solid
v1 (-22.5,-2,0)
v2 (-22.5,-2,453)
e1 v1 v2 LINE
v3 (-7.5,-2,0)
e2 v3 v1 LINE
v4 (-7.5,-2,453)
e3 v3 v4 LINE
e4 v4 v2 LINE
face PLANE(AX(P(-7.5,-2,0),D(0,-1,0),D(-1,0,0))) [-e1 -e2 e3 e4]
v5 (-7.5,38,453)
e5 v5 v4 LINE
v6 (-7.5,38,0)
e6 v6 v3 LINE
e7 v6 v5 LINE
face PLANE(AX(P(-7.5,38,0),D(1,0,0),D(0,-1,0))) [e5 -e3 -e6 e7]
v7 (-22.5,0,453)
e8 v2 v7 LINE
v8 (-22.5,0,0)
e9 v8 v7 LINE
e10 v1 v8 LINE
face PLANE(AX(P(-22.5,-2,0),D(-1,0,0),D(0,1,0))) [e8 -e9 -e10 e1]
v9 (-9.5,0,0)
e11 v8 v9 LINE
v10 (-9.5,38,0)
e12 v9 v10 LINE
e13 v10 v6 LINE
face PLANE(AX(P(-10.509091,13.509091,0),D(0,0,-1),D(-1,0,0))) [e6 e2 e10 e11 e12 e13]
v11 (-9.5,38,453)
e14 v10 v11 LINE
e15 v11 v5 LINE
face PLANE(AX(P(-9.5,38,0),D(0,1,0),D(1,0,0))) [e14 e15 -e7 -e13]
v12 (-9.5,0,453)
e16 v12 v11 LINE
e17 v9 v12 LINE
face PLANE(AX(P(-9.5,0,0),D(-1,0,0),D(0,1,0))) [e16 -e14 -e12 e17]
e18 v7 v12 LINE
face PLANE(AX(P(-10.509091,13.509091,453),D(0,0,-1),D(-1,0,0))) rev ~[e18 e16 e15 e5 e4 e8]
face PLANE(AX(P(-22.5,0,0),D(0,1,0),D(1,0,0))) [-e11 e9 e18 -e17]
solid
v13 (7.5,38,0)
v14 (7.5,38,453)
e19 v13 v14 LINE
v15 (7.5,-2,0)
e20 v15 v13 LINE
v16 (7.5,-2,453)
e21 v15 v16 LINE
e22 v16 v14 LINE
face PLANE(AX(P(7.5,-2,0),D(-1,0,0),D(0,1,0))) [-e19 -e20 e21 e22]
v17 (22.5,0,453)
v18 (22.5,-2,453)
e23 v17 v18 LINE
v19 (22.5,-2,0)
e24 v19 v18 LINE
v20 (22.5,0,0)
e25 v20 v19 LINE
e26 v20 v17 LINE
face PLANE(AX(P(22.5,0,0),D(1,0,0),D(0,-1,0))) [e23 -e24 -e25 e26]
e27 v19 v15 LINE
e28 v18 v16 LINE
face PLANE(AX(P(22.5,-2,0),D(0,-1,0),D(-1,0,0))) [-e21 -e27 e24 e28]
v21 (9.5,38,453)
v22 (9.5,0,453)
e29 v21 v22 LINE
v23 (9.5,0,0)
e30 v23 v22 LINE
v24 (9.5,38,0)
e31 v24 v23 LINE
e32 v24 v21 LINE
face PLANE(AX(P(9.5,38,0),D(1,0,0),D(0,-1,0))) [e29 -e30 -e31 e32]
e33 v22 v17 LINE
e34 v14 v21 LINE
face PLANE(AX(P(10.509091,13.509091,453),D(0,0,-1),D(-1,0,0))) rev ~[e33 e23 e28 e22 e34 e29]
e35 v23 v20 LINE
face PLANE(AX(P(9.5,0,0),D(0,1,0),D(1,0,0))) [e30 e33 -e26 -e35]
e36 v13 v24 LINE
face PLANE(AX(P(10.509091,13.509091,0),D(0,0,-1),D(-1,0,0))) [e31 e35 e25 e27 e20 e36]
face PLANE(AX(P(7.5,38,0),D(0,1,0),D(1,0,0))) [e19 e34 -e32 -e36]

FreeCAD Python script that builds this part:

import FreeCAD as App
import Part
import Sketcher


def add_polygon(sketch, points):
    """Adds a closed chain of lines whose ends are joined by coincident constraints."""
    first, n = sketch.GeometryCount, len(points)
    for a, b in zip(points, points[1:] + points[:1]):
        sketch.addGeometry(Part.LineSegment(App.Vector(*a, 0), App.Vector(*b, 0)), False)
    for i in range(n):
        sketch.addConstraint(Sketcher.Constraint("Coincident", first + i, 2, first + (i + 1) % n, 1))

doc = App.newDocument("Part")
body = doc.addObject("PartDesign::Body", "Body")
body.AllowCompound = True

# Sketch on XY plane
sketch1 = body.newObject("Sketcher::SketchObject", "Sketch")
sketch1.AttachmentSupport = (doc.getObject("XY_Plane"), [""])
sketch1.MapMode = "FlatFace"
add_polygon(sketch1, [(-7.5, 38), (-9.5, 38), (-9.5, 0), (-22.5, 0), (-22.5, -2), (-7.5, -2)])  # lines 0-5
add_polygon(sketch1, [(7.5, 38), (7.5, -2), (22.5, -2), (22.5, 0), (9.5, 0), (9.5, 38)])  # lines 6-11
sketch1.addConstraint([
    Sketcher.Constraint("Horizontal", 0),
    Sketcher.Constraint("Vertical", 1),
    Sketcher.Constraint("Horizontal", 2),
    Sketcher.Constraint("Vertical", 3),
    Sketcher.Constraint("Horizontal", 4),
    Sketcher.Constraint("Vertical", 5),
    Sketcher.Constraint("Vertical", 6),
    Sketcher.Constraint("Horizontal", 7),
    Sketcher.Constraint("Vertical", 8),
    Sketcher.Constraint("Horizontal", 9),
    Sketcher.Constraint("Vertical", 10),
    Sketcher.Constraint("Horizontal", 11),
    Sketcher.Constraint("Symmetric", 2, 2, 8, 2, -1, 1),
    Sketcher.Constraint("Symmetric", 4, 2, 6, 2, -2),
    Sketcher.Constraint("Symmetric", 1, 2, 9, 2, -2),
    Sketcher.Constraint("Horizontal", 5, 2, 10, 2),
    Sketcher.Constraint("Equal", 11, 3),
    Sketcher.Constraint("DistanceX", 0, 2, 0, 1, 2.0),
    Sketcher.Constraint("DistanceX", 2, 2, 2, 1, 13.0),
    Sketcher.Constraint("DistanceY", 1, 2, 1, 1, 38.0),
    Sketcher.Constraint("DistanceX", 4, 2, 6, 2, 15.0),
])
pad1 = body.newObject("PartDesign::Pad", "Pad")
pad1.Profile = sketch1
pad1.Length = 453

doc.recompute()
